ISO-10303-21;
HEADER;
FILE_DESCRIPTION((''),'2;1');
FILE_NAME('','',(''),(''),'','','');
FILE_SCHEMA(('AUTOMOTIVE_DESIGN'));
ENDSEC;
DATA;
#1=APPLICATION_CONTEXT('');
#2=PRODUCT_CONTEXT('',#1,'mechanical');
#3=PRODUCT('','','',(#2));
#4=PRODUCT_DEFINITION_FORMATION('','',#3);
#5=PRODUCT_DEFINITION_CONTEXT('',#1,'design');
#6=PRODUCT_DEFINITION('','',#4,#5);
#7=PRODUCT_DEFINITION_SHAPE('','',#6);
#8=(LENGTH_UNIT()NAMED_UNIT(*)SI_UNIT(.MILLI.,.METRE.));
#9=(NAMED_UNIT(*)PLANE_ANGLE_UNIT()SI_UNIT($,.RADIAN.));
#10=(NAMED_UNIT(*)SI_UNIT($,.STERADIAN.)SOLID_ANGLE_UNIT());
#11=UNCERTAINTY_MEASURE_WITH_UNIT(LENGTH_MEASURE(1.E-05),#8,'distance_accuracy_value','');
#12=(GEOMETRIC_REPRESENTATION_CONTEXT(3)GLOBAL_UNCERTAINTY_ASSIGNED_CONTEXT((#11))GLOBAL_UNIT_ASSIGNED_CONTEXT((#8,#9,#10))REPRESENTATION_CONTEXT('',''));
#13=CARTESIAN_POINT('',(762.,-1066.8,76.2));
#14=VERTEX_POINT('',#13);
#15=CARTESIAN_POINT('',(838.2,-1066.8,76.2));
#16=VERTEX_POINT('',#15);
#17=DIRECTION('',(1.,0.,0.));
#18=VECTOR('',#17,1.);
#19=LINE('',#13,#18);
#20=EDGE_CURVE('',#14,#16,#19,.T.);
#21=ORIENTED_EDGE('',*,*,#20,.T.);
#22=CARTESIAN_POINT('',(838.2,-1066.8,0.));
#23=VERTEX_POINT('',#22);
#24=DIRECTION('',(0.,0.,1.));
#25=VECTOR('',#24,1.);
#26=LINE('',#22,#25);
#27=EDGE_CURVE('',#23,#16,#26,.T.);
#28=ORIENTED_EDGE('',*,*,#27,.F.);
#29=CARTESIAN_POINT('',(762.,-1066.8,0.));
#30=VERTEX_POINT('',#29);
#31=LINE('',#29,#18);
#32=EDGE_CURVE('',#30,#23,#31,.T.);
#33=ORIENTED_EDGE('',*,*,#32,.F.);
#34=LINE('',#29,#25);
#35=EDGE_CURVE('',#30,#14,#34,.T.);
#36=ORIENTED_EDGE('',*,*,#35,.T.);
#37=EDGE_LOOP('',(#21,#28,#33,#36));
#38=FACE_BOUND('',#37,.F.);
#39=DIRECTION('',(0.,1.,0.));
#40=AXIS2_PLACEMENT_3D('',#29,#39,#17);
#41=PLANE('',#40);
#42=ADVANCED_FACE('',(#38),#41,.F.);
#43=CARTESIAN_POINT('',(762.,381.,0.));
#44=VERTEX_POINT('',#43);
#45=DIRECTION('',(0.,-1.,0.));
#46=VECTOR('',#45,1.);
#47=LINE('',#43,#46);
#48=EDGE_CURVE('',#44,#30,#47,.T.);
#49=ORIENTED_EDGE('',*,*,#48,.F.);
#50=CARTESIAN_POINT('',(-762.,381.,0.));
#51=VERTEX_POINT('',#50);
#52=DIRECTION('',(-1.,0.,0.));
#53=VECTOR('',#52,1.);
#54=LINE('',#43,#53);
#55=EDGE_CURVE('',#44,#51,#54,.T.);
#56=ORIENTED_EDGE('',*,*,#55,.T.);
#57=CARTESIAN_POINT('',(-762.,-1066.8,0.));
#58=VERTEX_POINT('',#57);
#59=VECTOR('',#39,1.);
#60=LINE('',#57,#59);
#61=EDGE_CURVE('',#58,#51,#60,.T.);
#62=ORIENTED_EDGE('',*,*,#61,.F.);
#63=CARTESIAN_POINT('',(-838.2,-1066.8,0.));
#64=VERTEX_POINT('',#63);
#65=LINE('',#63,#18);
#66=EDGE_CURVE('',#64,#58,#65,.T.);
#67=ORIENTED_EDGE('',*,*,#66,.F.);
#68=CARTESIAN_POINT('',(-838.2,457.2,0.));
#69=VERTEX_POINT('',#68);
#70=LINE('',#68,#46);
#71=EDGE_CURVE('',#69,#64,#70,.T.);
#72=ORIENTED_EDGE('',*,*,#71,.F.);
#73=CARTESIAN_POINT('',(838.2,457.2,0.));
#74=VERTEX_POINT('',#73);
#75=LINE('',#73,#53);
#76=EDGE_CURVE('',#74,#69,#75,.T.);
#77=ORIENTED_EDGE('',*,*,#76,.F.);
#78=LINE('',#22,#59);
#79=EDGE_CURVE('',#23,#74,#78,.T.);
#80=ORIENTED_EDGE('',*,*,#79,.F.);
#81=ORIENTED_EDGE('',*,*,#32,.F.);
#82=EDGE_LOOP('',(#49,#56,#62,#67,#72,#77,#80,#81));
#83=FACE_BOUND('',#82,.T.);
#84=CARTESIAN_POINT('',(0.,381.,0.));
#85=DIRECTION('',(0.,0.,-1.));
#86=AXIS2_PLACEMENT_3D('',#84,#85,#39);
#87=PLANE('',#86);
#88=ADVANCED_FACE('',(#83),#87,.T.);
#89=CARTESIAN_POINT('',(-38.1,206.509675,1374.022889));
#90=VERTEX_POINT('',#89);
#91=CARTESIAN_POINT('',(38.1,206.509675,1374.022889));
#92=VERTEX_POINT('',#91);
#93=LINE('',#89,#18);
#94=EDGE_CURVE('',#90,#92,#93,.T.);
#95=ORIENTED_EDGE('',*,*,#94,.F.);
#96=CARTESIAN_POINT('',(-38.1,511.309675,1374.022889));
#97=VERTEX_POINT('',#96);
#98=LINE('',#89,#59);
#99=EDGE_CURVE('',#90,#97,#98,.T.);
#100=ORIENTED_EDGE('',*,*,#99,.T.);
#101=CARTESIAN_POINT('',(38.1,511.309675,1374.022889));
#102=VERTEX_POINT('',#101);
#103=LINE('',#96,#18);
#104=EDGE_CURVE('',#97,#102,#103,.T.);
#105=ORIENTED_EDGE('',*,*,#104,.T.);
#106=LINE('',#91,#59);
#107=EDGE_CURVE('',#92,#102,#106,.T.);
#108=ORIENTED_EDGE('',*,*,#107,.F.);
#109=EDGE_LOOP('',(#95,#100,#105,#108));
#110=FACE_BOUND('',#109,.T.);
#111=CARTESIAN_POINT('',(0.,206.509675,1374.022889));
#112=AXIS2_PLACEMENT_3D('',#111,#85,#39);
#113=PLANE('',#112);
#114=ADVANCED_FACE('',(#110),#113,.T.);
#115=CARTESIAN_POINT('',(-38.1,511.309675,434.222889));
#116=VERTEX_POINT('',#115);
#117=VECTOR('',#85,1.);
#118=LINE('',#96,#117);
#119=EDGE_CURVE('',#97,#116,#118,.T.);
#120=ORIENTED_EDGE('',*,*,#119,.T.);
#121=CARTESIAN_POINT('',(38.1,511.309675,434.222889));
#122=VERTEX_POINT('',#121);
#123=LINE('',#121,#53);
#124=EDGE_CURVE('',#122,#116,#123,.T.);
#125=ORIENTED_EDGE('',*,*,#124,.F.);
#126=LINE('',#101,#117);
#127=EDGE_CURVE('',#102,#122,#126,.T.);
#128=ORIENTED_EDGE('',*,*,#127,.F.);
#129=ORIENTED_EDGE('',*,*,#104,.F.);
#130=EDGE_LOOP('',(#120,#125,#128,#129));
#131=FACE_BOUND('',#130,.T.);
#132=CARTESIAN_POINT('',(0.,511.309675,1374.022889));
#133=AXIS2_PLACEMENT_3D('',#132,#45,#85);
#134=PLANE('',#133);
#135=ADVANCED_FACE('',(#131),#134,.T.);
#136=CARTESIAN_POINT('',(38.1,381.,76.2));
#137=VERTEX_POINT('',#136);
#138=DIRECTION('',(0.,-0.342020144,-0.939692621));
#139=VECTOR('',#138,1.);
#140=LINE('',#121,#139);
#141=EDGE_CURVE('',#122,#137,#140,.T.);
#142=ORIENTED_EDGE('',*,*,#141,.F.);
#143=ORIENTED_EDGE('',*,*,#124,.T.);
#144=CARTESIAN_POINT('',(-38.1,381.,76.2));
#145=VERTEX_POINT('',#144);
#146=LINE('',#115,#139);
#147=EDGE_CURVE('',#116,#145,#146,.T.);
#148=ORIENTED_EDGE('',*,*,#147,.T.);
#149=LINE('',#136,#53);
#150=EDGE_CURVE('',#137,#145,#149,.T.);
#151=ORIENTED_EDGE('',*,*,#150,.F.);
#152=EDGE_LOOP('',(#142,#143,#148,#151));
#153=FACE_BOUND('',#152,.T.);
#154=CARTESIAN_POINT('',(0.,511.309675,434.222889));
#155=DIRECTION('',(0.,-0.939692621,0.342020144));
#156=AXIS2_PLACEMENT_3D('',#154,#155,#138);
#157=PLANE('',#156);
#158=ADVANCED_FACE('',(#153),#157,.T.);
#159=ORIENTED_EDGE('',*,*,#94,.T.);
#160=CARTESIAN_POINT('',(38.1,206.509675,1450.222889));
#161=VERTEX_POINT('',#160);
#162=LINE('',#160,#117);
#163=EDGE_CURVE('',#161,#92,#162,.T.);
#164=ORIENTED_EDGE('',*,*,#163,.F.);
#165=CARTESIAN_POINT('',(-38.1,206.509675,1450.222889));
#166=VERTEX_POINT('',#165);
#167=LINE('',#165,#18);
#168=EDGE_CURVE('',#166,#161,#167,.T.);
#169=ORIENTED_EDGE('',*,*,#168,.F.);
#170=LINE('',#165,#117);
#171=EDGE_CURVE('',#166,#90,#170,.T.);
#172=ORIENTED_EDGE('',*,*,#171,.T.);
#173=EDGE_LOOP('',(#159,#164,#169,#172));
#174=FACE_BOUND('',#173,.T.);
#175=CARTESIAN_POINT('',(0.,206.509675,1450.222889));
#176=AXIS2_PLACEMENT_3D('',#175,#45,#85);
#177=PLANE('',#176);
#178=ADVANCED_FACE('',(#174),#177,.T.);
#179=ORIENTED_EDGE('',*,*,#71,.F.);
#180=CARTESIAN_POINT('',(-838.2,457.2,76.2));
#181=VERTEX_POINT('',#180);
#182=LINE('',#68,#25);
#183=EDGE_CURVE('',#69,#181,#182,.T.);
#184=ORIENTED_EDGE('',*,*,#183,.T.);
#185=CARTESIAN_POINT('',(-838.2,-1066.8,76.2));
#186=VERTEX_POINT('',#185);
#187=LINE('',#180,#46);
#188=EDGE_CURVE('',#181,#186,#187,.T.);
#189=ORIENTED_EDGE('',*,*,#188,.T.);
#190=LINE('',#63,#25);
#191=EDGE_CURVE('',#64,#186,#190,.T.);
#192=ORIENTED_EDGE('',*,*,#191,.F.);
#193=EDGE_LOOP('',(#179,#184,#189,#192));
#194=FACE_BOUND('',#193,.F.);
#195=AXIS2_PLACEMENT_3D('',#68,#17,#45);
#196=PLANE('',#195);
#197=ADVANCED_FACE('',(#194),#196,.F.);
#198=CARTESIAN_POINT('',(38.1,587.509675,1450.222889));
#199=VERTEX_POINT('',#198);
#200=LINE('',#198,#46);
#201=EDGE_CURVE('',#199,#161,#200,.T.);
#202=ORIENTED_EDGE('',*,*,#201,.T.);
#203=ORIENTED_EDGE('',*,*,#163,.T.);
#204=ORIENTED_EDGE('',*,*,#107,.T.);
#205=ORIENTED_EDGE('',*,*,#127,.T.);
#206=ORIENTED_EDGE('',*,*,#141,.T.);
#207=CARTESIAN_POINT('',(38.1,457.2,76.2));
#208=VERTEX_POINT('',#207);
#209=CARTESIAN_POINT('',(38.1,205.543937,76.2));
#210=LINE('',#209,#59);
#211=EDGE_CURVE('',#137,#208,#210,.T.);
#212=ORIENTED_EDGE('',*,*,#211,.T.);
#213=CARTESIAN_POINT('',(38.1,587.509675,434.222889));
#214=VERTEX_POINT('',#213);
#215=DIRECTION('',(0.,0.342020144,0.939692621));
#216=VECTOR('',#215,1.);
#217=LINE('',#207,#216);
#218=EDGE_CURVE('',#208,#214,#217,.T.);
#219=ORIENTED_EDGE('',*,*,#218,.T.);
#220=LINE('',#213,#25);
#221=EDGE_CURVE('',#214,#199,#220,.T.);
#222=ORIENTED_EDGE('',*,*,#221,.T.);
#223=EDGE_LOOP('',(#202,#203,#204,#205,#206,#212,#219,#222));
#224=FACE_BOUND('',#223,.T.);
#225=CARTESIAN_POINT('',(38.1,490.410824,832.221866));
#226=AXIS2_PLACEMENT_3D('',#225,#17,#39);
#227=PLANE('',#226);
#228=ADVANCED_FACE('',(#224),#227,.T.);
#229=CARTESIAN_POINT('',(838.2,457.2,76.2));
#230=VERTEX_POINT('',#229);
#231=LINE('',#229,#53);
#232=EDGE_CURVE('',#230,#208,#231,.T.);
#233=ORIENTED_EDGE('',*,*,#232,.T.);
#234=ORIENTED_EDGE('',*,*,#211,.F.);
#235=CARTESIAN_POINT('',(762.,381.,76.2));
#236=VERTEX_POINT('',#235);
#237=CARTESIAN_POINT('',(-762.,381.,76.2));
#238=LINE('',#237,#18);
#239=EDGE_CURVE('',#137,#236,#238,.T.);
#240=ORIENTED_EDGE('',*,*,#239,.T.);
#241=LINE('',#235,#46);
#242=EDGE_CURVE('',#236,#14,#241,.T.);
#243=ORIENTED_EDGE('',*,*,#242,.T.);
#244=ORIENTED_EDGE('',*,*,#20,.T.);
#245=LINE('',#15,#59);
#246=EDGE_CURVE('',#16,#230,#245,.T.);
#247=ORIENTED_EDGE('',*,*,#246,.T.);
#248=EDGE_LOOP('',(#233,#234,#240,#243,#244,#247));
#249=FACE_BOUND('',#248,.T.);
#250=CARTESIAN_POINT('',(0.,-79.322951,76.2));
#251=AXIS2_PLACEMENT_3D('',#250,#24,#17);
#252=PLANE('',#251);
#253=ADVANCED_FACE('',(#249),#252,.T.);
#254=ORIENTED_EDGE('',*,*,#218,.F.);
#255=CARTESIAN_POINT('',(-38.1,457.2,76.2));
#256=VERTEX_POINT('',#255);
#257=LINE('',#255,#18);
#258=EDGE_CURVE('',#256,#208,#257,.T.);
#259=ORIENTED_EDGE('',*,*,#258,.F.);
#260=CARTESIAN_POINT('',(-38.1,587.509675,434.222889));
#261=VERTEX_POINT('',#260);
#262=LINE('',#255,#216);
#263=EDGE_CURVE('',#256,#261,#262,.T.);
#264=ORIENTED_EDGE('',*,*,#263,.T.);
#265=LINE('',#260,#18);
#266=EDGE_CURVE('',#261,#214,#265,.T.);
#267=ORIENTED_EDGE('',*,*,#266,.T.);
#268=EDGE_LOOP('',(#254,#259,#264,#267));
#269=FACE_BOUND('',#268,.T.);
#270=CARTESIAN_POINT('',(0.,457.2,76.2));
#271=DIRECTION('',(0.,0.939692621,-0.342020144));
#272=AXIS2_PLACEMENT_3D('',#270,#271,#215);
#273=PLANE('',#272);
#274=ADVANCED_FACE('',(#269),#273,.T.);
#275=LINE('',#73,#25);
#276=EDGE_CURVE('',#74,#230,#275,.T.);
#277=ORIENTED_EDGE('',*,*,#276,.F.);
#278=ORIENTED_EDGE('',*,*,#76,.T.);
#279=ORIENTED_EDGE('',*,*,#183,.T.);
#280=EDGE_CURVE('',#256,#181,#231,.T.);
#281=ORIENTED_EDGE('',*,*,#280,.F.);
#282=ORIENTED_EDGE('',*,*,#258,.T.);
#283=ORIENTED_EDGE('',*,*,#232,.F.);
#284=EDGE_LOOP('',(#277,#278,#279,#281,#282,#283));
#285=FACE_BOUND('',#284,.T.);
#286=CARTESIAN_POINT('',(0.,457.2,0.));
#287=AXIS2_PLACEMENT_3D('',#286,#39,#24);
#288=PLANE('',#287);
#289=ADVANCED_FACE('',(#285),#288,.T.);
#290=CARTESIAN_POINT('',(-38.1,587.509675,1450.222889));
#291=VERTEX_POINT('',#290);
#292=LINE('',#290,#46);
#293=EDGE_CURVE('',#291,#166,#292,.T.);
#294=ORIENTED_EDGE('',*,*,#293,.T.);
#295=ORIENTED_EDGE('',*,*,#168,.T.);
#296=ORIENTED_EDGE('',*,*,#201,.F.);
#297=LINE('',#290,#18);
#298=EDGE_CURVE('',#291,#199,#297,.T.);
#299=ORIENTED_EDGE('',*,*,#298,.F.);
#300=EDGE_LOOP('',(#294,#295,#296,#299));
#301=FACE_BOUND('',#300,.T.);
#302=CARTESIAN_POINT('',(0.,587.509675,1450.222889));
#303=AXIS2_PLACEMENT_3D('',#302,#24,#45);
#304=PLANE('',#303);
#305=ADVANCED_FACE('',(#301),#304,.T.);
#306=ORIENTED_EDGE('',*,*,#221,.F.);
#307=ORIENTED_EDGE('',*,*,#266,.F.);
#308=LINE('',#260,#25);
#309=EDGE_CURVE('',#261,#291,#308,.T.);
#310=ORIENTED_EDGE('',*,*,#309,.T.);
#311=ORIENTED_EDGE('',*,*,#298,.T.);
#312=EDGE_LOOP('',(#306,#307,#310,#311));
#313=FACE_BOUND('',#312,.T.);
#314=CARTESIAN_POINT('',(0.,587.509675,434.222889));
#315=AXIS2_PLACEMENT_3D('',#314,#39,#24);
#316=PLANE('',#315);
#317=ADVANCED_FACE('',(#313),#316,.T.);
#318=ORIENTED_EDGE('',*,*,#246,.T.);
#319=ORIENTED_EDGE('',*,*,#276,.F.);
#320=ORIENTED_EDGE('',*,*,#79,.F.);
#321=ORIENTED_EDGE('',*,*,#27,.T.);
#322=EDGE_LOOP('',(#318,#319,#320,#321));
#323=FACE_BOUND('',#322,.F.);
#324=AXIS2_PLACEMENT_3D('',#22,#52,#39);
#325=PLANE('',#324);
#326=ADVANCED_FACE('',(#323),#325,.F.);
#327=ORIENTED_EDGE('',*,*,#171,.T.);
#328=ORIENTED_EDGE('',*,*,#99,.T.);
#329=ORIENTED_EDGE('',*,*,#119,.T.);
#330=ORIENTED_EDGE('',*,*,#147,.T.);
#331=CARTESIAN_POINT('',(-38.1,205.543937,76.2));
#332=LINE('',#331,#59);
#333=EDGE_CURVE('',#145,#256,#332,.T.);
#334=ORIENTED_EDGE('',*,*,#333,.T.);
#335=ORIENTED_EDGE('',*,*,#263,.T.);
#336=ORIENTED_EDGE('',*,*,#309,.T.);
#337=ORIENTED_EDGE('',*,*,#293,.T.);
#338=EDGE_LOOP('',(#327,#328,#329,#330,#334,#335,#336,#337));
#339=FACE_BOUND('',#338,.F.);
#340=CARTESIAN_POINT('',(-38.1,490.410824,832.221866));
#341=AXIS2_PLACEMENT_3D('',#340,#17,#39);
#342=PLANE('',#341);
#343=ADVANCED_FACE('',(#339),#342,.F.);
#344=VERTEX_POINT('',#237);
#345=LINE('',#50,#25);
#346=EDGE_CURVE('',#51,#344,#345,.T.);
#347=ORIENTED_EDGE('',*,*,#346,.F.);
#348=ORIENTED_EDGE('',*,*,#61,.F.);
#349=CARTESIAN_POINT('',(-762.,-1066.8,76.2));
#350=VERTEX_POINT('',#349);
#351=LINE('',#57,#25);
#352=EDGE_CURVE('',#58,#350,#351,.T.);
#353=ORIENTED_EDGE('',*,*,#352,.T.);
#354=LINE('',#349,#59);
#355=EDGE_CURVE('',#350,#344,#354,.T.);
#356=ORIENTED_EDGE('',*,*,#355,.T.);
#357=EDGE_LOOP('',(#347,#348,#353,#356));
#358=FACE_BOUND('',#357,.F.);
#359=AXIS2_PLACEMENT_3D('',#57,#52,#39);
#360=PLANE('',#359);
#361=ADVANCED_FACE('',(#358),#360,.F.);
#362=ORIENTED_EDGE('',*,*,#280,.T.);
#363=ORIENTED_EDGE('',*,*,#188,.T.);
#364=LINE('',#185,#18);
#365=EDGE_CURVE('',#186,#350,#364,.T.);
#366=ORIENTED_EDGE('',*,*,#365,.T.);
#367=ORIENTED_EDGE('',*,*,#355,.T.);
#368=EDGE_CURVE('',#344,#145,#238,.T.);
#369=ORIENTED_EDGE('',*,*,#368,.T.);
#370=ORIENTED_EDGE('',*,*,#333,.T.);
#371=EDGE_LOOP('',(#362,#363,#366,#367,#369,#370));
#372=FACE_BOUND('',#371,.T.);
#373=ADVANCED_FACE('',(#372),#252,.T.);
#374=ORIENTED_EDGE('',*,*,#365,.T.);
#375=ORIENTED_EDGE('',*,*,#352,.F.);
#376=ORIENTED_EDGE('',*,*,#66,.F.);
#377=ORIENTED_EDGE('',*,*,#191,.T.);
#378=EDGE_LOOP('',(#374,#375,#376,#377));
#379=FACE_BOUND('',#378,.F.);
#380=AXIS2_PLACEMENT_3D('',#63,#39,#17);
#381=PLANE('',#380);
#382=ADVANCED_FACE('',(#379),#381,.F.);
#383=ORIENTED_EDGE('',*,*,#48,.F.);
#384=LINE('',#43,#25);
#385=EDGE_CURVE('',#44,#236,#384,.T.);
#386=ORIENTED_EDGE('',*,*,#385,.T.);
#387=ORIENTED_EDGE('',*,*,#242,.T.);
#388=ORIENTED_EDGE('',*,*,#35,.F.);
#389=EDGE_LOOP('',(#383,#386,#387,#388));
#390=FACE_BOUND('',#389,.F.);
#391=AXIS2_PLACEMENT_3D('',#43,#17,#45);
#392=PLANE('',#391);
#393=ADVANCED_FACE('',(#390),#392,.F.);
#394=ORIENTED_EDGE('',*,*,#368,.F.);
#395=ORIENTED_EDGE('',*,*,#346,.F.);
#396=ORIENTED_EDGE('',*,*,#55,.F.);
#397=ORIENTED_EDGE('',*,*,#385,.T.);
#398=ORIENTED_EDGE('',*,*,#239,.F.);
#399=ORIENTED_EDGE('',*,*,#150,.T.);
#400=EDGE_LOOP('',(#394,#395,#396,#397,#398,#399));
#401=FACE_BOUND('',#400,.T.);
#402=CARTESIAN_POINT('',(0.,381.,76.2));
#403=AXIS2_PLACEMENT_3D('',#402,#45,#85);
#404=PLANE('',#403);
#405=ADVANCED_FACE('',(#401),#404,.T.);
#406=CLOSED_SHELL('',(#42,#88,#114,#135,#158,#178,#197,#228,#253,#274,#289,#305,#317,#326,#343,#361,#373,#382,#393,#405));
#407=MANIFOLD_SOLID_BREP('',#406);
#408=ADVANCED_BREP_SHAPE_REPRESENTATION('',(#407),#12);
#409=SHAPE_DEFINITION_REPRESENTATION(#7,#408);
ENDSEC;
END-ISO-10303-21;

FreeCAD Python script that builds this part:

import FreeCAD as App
import Part
import Sketcher
from FreeCAD import Vector
Q = App.Units.Quantity


def add_polygon(sketch, points):
    """Adds a closed chain of lines whose ends are joined by coincident constraints."""
    first, n = sketch.GeometryCount, len(points)
    for a, b in zip(points, points[1:] + points[:1]):
        sketch.addGeometry(Part.LineSegment(App.Vector(*a, 0), App.Vector(*b, 0)), False)
    for i in range(n):
        sketch.addConstraint(Sketcher.Constraint("Coincident", first + i, 2, first + (i + 1) % n, 1))

doc = App.newDocument("Part")
body = doc.addObject("PartDesign::Body", "Body")

sketch1 = body.newObject("Sketcher::SketchObject", "Sketch")
sketch1.AttachmentSupport = (doc.getObject("XY_Plane"), [""])
sketch1.MapMode = "FlatFace"
add_polygon(sketch1, [(-838, 457), (-838, -1067), (-762, -1067), (-762, 381), (762, 381), (762, -1067), (838, -1067), (838, 457)])
sketch1.addConstraint(Sketcher.Constraint("Vertical", 0))
sketch1.addConstraint(Sketcher.Constraint("Horizontal", 1))
sketch1.addConstraint(Sketcher.Constraint("Vertical", 2))
sketch1.addConstraint(Sketcher.Constraint("Horizontal", 3))
sketch1.addConstraint(Sketcher.Constraint("Vertical", 4))
sketch1.addConstraint(Sketcher.Constraint("Horizontal", 5))
sketch1.addConstraint(Sketcher.Constraint("Vertical", 6))
sketch1.addConstraint(Sketcher.Constraint("Horizontal", 7))
sketch1.addConstraint(Sketcher.Constraint("Symmetric", 1, 2, 4, 2, -2))
sketch1.addConstraint(Sketcher.Constraint("Equal", 1, 5))
sketch1.addConstraint(Sketcher.Constraint("Equal", 3, 0))
sketch1.addConstraint(Sketcher.Constraint("DistanceX", 1, 1, 1, 2, Q("3 in")))
sketch1.addConstraint(Sketcher.Constraint("DistanceX", 3, 1, 3, 2, Q("60 in")))
sketch1.addConstraint(Sketcher.Constraint("DistanceY", 2, 1, 2, 2, Q("57 in")))
sketch1.addConstraint(Sketcher.Constraint("DistanceY", 0, 2, -1, 1, Q("42 in")))
pad1 = body.newObject("PartDesign::Pad", "Pad")
pad1.Profile = sketch1
pad1.Length = Q("3 in")

sketch2 = body.newObject("Sketcher::SketchObject", "Sketch001")
sketch2.AttachmentSupport = (doc.getObject("YZ_Plane"), [""])
sketch2.MapMode = "FlatFace"
add_polygon(sketch2, [(381, 0), (457, 0), (457, 76), (588, 434), (588, 1450), (207, 1450), (207, 1374), (511, 1374), (511, 434), (381, 76)])
sketch2.addConstraint(Sketcher.Constraint("Horizontal", 0))
sketch2.addConstraint(Sketcher.Constraint("Vertical", 1))
sketch2.addConstraint(Sketcher.Constraint("Vertical", 3))
sketch2.addConstraint(Sketcher.Constraint("Horizontal", 4))
sketch2.addConstraint(Sketcher.Constraint("Vertical", 5))
sketch2.addConstraint(Sketcher.Constraint("Horizontal", 6))
sketch2.addConstraint(Sketcher.Constraint("Vertical", 7))
sketch2.addConstraint(Sketcher.Constraint("Vertical", 9))
sketch2.addConstraint(Sketcher.Constraint("PointOnObject", 0, 2, -1))
sketch2.addConstraint(Sketcher.Constraint("Parallel", 2, 8))
sketch2.addConstraint(Sketcher.Constraint("Horizontal", 2, 2, 7, 2))
sketch2.addConstraint(Sketcher.Constraint("Horizontal", 1, 2, 8, 2))
sketch2.addConstraint(Sketcher.Constraint("Equal", 0, 1))
sketch2.addConstraint(Sketcher.Constraint("Equal", 1, 5))
sketch2.addConstraint(Sketcher.Constraint("DistanceX", 0, 1, 0, 2, Q("3 in")))
sketch2.addConstraint(Sketcher.Constraint("DistanceX", 4, 2, 4, 1, Q("15 in")))
sketch2.addConstraint(Sketcher.Constraint("DistanceY", 3, 1, 3, 2, Q("40 in")))
sketch2.addConstraint(Sketcher.Constraint("Distance", 2, Q("15 in")))
sketch2.addConstraint(Sketcher.Constraint("DistanceX", -1, 1, 0, 2, Q("18 in")))
sketch2.addConstraint(Sketcher.Constraint("Angle", 2, Q("70 deg")))
pad2 = body.newObject("PartDesign::Pad", "Pad001")
pad2.Profile = sketch2
pad2.Length = Q("3 in")
pad2.Midplane = True

doc.recompute()
